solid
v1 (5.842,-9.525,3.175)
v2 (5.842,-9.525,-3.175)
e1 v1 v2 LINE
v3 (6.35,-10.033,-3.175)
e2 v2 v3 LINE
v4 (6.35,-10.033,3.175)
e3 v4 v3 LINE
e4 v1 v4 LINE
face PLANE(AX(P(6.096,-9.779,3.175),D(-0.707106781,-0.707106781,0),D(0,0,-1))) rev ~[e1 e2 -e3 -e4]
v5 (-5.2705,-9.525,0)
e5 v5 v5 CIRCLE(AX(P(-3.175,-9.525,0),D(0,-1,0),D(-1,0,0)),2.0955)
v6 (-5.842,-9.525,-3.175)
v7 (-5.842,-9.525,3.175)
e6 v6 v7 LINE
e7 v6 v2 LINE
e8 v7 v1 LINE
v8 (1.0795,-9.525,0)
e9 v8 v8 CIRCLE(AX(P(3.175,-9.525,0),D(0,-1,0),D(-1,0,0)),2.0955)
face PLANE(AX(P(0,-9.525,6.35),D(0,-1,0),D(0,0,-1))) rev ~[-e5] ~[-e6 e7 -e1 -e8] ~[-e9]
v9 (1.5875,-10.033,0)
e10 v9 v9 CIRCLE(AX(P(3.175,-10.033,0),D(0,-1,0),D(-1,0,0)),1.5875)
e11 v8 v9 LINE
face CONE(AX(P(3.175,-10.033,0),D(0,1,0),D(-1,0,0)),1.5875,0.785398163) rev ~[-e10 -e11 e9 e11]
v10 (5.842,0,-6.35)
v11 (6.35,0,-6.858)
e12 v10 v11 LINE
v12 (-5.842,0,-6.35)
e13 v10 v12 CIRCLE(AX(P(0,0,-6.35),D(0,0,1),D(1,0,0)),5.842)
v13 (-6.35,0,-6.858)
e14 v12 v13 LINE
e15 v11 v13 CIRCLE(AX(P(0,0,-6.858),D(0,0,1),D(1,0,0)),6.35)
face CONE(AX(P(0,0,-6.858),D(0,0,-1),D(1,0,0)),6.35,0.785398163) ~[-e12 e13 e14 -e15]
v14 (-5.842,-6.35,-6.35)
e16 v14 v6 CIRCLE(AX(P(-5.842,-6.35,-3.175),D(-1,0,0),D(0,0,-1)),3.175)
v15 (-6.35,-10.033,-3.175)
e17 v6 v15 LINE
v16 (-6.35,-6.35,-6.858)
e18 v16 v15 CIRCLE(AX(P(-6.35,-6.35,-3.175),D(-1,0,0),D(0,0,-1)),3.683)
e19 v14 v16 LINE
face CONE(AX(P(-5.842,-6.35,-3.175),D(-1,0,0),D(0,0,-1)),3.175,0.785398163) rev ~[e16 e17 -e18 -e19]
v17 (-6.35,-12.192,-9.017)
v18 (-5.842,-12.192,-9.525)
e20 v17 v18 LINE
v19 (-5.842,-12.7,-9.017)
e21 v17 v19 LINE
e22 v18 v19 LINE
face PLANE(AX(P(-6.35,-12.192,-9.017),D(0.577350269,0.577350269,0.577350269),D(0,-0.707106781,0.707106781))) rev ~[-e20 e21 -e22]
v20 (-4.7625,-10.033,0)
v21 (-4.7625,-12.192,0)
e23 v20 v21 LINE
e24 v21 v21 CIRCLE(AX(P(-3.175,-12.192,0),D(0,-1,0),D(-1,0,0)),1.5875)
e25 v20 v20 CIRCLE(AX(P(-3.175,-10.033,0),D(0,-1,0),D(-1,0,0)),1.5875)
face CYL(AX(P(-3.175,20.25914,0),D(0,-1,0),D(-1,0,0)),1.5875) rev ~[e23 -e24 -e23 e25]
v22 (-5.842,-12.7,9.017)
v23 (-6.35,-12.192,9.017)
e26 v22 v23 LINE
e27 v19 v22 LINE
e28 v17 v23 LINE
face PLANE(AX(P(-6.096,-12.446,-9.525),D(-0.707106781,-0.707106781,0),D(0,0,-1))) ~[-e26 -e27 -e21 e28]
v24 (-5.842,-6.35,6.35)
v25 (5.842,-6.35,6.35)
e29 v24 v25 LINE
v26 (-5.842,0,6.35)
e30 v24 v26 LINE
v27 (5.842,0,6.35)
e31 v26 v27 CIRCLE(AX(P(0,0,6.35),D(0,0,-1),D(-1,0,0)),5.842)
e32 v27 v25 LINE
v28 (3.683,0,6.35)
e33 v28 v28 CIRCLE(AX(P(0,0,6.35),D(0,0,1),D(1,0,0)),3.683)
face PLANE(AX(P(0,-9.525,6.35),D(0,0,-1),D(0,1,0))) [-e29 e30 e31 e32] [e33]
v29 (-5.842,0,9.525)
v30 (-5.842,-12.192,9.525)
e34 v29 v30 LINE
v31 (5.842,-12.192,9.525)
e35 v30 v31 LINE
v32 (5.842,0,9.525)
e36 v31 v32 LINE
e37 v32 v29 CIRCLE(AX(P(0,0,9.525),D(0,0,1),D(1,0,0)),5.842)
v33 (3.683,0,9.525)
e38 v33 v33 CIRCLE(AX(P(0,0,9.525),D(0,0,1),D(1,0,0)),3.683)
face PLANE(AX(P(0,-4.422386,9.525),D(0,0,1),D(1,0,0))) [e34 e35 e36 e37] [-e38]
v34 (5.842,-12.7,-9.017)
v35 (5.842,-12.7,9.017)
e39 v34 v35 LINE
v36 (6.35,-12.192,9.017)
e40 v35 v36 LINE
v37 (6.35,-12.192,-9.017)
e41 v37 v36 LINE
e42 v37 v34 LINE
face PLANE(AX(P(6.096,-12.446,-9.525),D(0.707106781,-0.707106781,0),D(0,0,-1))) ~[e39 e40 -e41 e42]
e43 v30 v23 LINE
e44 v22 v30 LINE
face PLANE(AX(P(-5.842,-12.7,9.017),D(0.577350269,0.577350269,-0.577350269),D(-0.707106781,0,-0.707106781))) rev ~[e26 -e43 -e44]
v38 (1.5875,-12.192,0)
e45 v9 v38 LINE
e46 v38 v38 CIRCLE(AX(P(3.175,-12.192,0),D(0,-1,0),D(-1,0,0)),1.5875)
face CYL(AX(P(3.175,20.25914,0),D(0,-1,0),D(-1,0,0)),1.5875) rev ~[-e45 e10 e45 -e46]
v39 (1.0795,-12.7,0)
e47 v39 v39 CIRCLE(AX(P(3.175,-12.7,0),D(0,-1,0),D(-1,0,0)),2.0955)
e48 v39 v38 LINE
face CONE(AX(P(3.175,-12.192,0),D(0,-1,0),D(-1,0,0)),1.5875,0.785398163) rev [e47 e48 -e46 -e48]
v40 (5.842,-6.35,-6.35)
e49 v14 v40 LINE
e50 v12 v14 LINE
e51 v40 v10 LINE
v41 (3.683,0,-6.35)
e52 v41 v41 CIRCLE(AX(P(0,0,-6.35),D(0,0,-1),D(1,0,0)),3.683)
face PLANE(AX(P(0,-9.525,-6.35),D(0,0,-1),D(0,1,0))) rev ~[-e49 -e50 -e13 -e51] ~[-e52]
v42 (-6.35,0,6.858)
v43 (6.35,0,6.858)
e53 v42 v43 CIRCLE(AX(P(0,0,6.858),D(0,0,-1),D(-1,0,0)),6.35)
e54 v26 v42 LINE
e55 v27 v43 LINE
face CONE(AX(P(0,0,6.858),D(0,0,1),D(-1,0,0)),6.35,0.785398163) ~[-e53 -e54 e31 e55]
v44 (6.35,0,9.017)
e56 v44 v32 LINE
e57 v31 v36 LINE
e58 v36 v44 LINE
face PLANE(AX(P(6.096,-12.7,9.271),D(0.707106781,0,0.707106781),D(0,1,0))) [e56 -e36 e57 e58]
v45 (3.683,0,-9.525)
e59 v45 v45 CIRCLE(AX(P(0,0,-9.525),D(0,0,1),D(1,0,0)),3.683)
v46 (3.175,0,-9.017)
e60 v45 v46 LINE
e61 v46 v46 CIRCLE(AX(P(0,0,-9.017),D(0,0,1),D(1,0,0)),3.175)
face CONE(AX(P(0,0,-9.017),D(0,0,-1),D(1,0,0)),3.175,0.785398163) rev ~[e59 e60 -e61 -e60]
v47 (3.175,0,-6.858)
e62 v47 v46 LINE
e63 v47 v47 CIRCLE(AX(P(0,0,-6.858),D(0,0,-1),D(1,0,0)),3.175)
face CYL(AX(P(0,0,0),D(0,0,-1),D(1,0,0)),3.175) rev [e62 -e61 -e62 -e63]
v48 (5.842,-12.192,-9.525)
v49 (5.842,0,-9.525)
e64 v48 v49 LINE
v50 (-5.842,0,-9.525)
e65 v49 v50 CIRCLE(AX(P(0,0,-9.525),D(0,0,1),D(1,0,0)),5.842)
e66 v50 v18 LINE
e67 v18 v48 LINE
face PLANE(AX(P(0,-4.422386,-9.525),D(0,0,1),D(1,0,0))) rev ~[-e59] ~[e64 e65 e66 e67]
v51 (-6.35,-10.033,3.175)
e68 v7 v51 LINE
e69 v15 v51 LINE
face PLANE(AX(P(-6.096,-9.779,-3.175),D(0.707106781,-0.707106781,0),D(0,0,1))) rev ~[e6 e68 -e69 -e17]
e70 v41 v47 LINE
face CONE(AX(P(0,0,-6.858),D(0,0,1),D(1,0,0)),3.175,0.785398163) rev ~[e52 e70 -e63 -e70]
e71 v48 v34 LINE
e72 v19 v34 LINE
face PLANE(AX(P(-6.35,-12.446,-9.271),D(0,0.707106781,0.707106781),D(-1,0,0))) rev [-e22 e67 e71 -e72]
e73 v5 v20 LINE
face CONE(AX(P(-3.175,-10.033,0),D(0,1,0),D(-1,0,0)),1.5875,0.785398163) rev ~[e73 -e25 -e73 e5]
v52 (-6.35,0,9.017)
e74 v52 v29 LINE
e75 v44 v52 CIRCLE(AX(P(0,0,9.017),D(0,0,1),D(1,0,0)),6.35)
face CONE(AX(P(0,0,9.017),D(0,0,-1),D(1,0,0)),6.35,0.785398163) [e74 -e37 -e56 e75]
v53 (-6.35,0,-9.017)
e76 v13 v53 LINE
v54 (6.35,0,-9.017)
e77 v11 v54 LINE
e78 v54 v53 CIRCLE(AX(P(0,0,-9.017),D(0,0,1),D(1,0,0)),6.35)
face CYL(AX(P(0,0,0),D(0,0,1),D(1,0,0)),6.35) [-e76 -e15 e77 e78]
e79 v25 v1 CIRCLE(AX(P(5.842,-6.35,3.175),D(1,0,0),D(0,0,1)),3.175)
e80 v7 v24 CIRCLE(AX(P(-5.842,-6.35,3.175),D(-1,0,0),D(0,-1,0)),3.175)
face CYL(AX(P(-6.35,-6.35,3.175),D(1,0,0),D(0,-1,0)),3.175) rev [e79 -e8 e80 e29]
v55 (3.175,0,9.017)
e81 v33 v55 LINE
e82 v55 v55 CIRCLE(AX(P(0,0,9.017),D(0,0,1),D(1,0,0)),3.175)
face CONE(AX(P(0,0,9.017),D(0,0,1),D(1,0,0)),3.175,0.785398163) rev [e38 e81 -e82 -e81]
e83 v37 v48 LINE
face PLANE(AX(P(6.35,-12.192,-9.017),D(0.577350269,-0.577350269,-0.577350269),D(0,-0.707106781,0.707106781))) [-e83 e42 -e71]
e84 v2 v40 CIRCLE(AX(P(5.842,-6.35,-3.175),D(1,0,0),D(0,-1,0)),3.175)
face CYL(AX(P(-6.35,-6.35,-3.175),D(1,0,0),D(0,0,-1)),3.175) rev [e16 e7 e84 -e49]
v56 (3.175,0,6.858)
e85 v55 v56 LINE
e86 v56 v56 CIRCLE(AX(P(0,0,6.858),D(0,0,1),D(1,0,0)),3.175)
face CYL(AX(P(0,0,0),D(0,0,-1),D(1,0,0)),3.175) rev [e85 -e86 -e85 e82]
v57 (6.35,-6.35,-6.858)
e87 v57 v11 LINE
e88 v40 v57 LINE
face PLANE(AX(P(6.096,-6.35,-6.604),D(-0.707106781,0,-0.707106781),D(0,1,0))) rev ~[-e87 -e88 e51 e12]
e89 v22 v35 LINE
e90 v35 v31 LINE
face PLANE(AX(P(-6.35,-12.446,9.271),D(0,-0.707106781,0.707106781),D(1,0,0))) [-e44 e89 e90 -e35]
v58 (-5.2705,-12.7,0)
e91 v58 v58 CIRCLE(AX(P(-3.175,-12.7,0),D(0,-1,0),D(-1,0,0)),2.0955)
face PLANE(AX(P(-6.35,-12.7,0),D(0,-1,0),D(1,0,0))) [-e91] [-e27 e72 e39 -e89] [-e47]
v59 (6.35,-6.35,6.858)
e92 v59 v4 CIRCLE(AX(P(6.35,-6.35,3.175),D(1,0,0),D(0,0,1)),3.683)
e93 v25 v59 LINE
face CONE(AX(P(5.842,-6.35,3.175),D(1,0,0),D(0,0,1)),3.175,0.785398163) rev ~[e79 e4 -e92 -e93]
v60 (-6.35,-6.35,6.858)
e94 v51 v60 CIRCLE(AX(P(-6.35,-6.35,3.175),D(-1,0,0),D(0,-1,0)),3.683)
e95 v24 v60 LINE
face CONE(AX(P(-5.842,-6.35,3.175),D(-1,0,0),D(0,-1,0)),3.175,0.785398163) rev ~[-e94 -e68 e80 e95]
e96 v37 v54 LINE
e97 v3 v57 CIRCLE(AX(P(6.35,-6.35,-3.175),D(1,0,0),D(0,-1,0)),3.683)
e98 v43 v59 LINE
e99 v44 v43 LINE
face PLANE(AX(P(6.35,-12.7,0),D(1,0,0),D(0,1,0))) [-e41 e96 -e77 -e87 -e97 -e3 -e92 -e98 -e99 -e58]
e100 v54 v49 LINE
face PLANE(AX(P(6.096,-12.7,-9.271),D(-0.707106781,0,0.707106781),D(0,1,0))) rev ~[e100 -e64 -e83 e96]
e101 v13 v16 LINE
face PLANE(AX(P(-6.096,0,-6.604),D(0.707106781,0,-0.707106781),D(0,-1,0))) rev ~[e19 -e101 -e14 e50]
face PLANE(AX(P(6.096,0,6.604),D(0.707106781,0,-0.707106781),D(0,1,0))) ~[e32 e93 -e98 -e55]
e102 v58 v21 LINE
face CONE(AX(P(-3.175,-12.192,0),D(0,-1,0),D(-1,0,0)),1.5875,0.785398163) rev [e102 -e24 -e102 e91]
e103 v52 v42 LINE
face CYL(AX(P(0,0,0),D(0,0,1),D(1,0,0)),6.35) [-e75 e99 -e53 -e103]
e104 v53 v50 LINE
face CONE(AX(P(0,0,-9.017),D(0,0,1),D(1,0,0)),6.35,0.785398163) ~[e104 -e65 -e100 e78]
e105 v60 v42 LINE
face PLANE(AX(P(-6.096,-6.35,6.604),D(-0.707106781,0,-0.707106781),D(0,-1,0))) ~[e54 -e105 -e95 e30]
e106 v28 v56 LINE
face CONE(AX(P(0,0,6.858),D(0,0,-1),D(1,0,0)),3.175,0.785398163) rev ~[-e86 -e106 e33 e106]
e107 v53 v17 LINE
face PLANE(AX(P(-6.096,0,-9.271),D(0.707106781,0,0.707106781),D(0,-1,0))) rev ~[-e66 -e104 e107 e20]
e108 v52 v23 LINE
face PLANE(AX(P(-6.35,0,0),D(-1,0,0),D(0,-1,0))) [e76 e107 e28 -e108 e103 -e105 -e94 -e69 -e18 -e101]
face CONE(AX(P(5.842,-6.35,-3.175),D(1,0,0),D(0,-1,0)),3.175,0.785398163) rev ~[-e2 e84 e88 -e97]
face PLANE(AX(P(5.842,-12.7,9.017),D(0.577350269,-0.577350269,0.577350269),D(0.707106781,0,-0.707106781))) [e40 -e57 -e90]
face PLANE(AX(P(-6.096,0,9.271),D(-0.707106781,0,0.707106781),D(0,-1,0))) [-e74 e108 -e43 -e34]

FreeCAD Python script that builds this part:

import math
import FreeCAD as App
import Part
import Sketcher

V = App.Vector
Q = App.Units.Quantity


def edges_at(feature, points):
    """Names of the edges that pass closest to the given points."""
    edges = feature.Shape.Edges
    near = lambda p: min(range(len(edges)), key=lambda i: edges[i].distToShape(Part.Vertex(*p))[0])
    return sorted({f"Edge{near(p) + 1}" for p in points})

doc = App.newDocument("Part")
body = doc.addObject("PartDesign::Body", "Body")

# Sketch on XY plane
sketch1 = body.newObject("Sketcher::SketchObject", "Sketch")
sketch1.AttachmentSupport = (doc.getObject("XY_Plane"), [""])
sketch1.MapMode = "FlatFace"
sketch1.addGeometry([
    Part.LineSegment(V(-6.35, 0, 0), V(-6.35, -12.7, 0)),  # 0
    Part.LineSegment(V(-6.35, -12.7, 0), V(6.35, -12.7, 0)),  # 1
    Part.LineSegment(V(6.35, -12.7, 0), V(6.35, 0, 0)),  # 2
    Part.ArcOfCircle(Part.Circle(V(0, 0, 0), V(0, 0, 1), 6.35), math.radians(0), math.radians(180)),  # 3
    Part.Circle(V(0, 0, 0), V(0, 0, 1), 3.175),  # 4
], False)
sketch1.addConstraint([
    Sketcher.Constraint("Coincident", 0, 2, 1, 1),
    Sketcher.Constraint("Coincident", 1, 2, 2, 1),
    Sketcher.Constraint("Tangent", 2, 2, 3, 1),
    Sketcher.Constraint("Tangent", 3, 2, 0, 1),
    Sketcher.Constraint("Vertical", 0),
    Sketcher.Constraint("Horizontal", 1),
    Sketcher.Constraint("Vertical", 2),
    Sketcher.Constraint("Coincident", 3, 3, -1, 1),
    Sketcher.Constraint("Coincident", 4, 3, -1, 1),
    Sketcher.Constraint("Equal", 1, 0),
    Sketcher.Constraint("Diameter", 4, Q("0.25 in")),
    Sketcher.Constraint("Radius", 3, Q("0.25 in")),
])
pad1 = body.newObject("PartDesign::Pad", "Pad")
pad1.Profile = sketch1
pad1.Length = Q("0.75 in")
pad1.Midplane = True

# Sketch on YZ plane
sketch2 = body.newObject("Sketcher::SketchObject", "Sketch001")
sketch2.AttachmentSupport = (doc.getObject("YZ_Plane"), [""])
sketch2.MapMode = "FlatFace"
sketch2.addGeometry([
    Part.LineSegment(V(6.35, 6.35, 0), V(-9.525, 6.35, 0)),
    Part.LineSegment(V(-9.525, 6.35, 0), V(-9.525, -6.35, 0)),
    Part.LineSegment(V(-9.525, -6.35, 0), V(6.35, -6.35, 0)),
    Part.LineSegment(V(6.35, -6.35, 0), V(6.35, 6.35, 0)),
], False)
sketch2.addConstraint([
    Sketcher.Constraint("Coincident", 0, 2, 1, 1),
    Sketcher.Constraint("Coincident", 1, 2, 2, 1),
    Sketcher.Constraint("Coincident", 2, 2, 3, 1),
    Sketcher.Constraint("Coincident", 3, 2, 0, 1),
    Sketcher.Constraint("Horizontal", 0),
    Sketcher.Constraint("Vertical", 1),
    Sketcher.Constraint("Horizontal", 2),
    Sketcher.Constraint("Vertical", 3),
    Sketcher.Constraint("DistanceY", 1, 2, 1, 1, Q("0.5 in")),
    Sketcher.Constraint("DistanceX", 0, 2, 0, 1, Q("0.625 in")),
    Sketcher.Constraint("DistanceY", -1, 1, 0, 2, Q("0.25 in")),
    Sketcher.Constraint("DistanceX", -1, 1, 2, 2, Q("0.25 in")),
])
pocket1 = body.newObject("PartDesign::Pocket", "Pocket")
pocket1.Profile = sketch2
pocket1.Type = "ThroughAll"
pocket1.Midplane = True

# Sketch on XZ plane
sketch3 = body.newObject("Sketcher::SketchObject", "Sketch002")
sketch3.AttachmentSupport = (doc.getObject("XZ_Plane"), [""])
sketch3.MapMode = "FlatFace"
sketch3.AttachmentOffset = App.Placement(V(0, 0, 0.375 * 25.4), App.Rotation())
sketch3.addGeometry([
    Part.Circle(V(-3.175, 0, 0), V(0, 0, 1), 1.5875),
    Part.Circle(V(3.175, 0, 0), V(0, 0, 1), 1.5875),
], False)
sketch3.addConstraint([
    Sketcher.Constraint("Equal", 0, 1),
    Sketcher.Constraint("Symmetric", 0, 3, 1, 3, -1, 1),
    Sketcher.Constraint("PointOnObject", 0, 3, -1),
    Sketcher.Constraint("Diameter", 0, Q("0.125 in")),
    Sketcher.Constraint("DistanceX", 0, 3, 1, 3, Q("0.25 in")),
])
doc.recompute()
hole = body.newObject("PartDesign::Hole", "Hole")
hole.Profile = sketch3
hole.ThreadType = "None"
hole.Diameter = Q("0.125 in")
hole.DepthType = "ThroughAll"
hole.Reversed = True
doc.recompute()

fillet = body.newObject("PartDesign::Fillet", "Fillet")
fillet.Base = (hole, edges_at(hole, [(0, -9.525, 6.35), (0, -9.525, -6.35)]))
fillet.Radius = Q("0.125 in")
doc.recompute()

chamfer = body.newObject("PartDesign::Chamfer", "Chamfer")
chamfer.Base = (fillet, edges_at(fillet, [
    (-6.35, -6.35, 9.525),
    (-3.175, 0, -9.525),
    (-3.175, 0, 9.525),
    (0, -12.7, 9.525),
    (0, 6.35, 6.35),
    (-6.35, -3.175, 6.35),
    (-3.175, 0, 6.35),
    (-3.175, 0, -6.35),
    (6.35, -3.175, -6.35),
    (0, 6.35, -6.35),
    (-6.35, -3.175, -6.35),
    (6.35, -3.175, 6.35),
    (6.35, -6.35, 9.525),
    (0, -12.7, -9.525),
    (4.763, -9.525, 0),
    (4.763, -12.7, 0),
    (-6.35, -6.35, -9.525),
    (-1.587, -9.525, 0),
    (-1.587, -12.7, 0),
    (0, 6.35, -9.525),
    (-6.35, -9.525, 0),
    (6.35, -9.525, 0),
    (6.35, -6.35, -9.525),
    (6.35, -8.595, -5.42),
    (-6.35, -8.595, -5.42),
    (6.35, -8.595, 5.42),
    (-6.35, -8.595, 5.42),
    (0, 6.35, 9.525),
    (6.35, -12.7, 0),
    (-6.35, -12.7, 0),
]))
chamfer.Size = Q("0.02 in")

doc.recompute()
